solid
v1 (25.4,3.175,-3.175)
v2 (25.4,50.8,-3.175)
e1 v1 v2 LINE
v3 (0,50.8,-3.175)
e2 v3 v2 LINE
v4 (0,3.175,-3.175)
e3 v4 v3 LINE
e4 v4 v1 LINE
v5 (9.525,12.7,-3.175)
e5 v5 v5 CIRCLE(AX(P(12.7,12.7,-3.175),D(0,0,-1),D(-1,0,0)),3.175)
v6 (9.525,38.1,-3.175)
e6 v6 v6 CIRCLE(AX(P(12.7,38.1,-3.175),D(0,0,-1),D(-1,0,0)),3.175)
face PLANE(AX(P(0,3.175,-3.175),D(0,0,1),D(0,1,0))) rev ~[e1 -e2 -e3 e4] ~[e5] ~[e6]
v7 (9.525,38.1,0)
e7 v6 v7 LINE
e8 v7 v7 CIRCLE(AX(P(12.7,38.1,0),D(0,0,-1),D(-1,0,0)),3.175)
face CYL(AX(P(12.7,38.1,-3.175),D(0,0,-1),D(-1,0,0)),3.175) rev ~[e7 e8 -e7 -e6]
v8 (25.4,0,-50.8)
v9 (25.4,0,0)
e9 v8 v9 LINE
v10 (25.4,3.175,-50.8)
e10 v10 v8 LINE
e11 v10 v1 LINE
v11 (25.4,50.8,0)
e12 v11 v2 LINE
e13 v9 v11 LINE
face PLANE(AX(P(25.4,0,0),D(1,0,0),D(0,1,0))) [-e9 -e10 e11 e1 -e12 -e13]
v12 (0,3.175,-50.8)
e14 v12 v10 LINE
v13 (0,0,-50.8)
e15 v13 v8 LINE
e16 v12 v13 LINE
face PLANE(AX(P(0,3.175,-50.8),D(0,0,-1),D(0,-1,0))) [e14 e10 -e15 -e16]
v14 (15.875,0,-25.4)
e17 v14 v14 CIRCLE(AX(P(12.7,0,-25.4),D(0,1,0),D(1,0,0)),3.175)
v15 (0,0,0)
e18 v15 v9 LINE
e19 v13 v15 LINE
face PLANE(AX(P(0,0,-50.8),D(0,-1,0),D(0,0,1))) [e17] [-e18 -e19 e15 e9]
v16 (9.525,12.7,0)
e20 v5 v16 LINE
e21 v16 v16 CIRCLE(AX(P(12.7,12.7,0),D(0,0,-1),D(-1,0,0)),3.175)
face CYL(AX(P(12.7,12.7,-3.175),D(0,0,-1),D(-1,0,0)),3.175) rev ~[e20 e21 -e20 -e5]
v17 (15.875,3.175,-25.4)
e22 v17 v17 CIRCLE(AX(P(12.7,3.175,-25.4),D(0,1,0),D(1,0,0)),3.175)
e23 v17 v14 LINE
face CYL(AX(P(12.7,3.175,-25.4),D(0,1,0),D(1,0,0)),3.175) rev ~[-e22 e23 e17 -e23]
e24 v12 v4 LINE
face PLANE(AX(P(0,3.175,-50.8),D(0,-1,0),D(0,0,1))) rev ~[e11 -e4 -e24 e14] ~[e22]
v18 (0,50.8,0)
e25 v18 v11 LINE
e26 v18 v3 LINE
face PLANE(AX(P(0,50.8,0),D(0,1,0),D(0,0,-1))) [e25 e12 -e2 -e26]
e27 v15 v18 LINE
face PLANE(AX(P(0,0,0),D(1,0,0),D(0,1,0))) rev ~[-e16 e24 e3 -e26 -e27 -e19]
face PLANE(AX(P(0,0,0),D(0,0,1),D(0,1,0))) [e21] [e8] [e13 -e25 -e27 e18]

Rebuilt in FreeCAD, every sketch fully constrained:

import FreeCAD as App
import Part
import Sketcher
from FreeCAD import Vector
Q = App.Units.Quantity


def add_polygon(sketch, points):
    """Adds a closed chain of lines whose ends are joined by coincident constraints."""
    first, n = sketch.GeometryCount, len(points)
    for a, b in zip(points, points[1:] + points[:1]):
        sketch.addGeometry(Part.LineSegment(App.Vector(*a, 0), App.Vector(*b, 0)), False)
    for i in range(n):
        sketch.addConstraint(Sketcher.Constraint("Coincident", first + i, 2, first + (i + 1) % n, 1))

doc = App.newDocument("Part")
params = doc.addObject("Spreadsheet::Sheet", "Params")
for row, (alias, value) in enumerate([
    ("sketch1_width", "2 in"),
    ("sketch1_width2", "0.125 in"),
    ("pad1_length", "1 in"),
    ("sketch2_diameter", "0.25 in"),
    ("pocket1_length", "0.125 in"),
    ("sketch3_diameter", "0.25 in"),
    ("pocket2_length", "0.125 in"),
], start=1):
    params.set(f"A{row}", alias)
    params.set(f"B{row}", "=" + value)
    params.setAlias(f"B{row}", alias)

body = doc.addObject("PartDesign::Body", "Body")

sketch1 = body.newObject("Sketcher::SketchObject", "Sketch")
sketch1.AttachmentSupport = (doc.getObject("YZ_Plane"), [""])
sketch1.MapMode = "FlatFace"
add_polygon(sketch1, [(50.8, 0), (0, 0), (0, -50.8), (3.2, -50.8), (3.2, -3.2), (50.8, -3.2)])
sketch1.addConstraint([
    Sketcher.Constraint("Horizontal", 0),
    Sketcher.Constraint("Vertical", 1),
    Sketcher.Constraint("Horizontal", 2),
    Sketcher.Constraint("Vertical", 3),
    Sketcher.Constraint("Horizontal", 4),
    Sketcher.Constraint("Vertical", 5),
    Sketcher.Constraint("Coincident", 0, 2, -1, 1),
    Sketcher.Constraint("Equal", 0, 1),
    Sketcher.Constraint("Equal", 4, 3),
    Sketcher.Constraint("DistanceX", 0, 2, 0, 1, Q("2 in")),
    Sketcher.Constraint("DistanceX", 2, 1, 2, 2, Q("0.125 in")),
])
sketch1.setExpression("Constraints[15]", "Params.sketch1_width")
sketch1.setExpression("Constraints[16]", "Params.sketch1_width2")
pad1 = body.newObject("PartDesign::Pad", "Pad")
pad1.Profile = sketch1
pad1.setExpression("Length", "Params.pad1_length")

sketch2 = body.newObject("Sketcher::SketchObject", "Sketch001")
sketch2.AttachmentSupport = (doc.getObject("XZ_Plane"), [""])
sketch2.MapMode = "FlatFace"
sketch2.AttachmentOffset = App.Placement(Vector(0, 0, -0.125 * 25.4), App.Rotation())
sketch2.addGeometry(Part.Circle(Vector(12.7, -25.4, 0), Vector(0, 0, 1), 3.2), False)
sketch2.addConstraint([
    Sketcher.Constraint("Diameter", 0, Q("0.25 in")),
    Sketcher.Constraint("DistanceY", 0, 3, -1, 1, Q("1 in")),
    Sketcher.Constraint("DistanceX", -1, 1, 0, 3, Q("0.5 in")),
])
sketch2.setExpression("Constraints[0]", "Params.sketch2_diameter")
pocket1 = body.newObject("PartDesign::Pocket", "Pocket")
pocket1.Profile = sketch2
pocket1.setExpression("Length", "Params.pocket1_length")
pocket1.Reversed = True

sketch3 = body.newObject("Sketcher::SketchObject", "Sketch002")
sketch3.AttachmentSupport = (doc.getObject("XY_Plane"), [""])
sketch3.MapMode = "FlatFace"
sketch3.AttachmentOffset = App.Placement(Vector(0, 0, -0.125 * 25.4), App.Rotation())
sketch3.addGeometry([
    Part.Circle(Vector(12.7, 38.1, 0), Vector(0, 0, 1), 3.2),
    Part.Circle(Vector(12.7, 12.7, 0), Vector(0, 0, 1), 3.2),
], False)
sketch3.addConstraint([
    Sketcher.Constraint("Equal", 0, 1),
    Sketcher.Constraint("Vertical", 0, 3, 1, 3),
    Sketcher.Constraint("Diameter", 0, Q("0.25 in")),
    Sketcher.Constraint("DistanceX", -1, 1, 0, 3, Q("0.5 in")),
    Sketcher.Constraint("DistanceY", -1, 1, 0, 3, Q("1.5 in")),
    Sketcher.Constraint("DistanceY", -1, 1, 1, 3, Q("0.5 in")),
])
sketch3.setExpression("Constraints[2]", "Params.sketch3_diameter")
pocket2 = body.newObject("PartDesign::Pocket", "Pocket001")
pocket2.Profile = sketch3
pocket2.setExpression("Length", "Params.pocket2_length")
pocket2.Reversed = True

doc.recompute()
